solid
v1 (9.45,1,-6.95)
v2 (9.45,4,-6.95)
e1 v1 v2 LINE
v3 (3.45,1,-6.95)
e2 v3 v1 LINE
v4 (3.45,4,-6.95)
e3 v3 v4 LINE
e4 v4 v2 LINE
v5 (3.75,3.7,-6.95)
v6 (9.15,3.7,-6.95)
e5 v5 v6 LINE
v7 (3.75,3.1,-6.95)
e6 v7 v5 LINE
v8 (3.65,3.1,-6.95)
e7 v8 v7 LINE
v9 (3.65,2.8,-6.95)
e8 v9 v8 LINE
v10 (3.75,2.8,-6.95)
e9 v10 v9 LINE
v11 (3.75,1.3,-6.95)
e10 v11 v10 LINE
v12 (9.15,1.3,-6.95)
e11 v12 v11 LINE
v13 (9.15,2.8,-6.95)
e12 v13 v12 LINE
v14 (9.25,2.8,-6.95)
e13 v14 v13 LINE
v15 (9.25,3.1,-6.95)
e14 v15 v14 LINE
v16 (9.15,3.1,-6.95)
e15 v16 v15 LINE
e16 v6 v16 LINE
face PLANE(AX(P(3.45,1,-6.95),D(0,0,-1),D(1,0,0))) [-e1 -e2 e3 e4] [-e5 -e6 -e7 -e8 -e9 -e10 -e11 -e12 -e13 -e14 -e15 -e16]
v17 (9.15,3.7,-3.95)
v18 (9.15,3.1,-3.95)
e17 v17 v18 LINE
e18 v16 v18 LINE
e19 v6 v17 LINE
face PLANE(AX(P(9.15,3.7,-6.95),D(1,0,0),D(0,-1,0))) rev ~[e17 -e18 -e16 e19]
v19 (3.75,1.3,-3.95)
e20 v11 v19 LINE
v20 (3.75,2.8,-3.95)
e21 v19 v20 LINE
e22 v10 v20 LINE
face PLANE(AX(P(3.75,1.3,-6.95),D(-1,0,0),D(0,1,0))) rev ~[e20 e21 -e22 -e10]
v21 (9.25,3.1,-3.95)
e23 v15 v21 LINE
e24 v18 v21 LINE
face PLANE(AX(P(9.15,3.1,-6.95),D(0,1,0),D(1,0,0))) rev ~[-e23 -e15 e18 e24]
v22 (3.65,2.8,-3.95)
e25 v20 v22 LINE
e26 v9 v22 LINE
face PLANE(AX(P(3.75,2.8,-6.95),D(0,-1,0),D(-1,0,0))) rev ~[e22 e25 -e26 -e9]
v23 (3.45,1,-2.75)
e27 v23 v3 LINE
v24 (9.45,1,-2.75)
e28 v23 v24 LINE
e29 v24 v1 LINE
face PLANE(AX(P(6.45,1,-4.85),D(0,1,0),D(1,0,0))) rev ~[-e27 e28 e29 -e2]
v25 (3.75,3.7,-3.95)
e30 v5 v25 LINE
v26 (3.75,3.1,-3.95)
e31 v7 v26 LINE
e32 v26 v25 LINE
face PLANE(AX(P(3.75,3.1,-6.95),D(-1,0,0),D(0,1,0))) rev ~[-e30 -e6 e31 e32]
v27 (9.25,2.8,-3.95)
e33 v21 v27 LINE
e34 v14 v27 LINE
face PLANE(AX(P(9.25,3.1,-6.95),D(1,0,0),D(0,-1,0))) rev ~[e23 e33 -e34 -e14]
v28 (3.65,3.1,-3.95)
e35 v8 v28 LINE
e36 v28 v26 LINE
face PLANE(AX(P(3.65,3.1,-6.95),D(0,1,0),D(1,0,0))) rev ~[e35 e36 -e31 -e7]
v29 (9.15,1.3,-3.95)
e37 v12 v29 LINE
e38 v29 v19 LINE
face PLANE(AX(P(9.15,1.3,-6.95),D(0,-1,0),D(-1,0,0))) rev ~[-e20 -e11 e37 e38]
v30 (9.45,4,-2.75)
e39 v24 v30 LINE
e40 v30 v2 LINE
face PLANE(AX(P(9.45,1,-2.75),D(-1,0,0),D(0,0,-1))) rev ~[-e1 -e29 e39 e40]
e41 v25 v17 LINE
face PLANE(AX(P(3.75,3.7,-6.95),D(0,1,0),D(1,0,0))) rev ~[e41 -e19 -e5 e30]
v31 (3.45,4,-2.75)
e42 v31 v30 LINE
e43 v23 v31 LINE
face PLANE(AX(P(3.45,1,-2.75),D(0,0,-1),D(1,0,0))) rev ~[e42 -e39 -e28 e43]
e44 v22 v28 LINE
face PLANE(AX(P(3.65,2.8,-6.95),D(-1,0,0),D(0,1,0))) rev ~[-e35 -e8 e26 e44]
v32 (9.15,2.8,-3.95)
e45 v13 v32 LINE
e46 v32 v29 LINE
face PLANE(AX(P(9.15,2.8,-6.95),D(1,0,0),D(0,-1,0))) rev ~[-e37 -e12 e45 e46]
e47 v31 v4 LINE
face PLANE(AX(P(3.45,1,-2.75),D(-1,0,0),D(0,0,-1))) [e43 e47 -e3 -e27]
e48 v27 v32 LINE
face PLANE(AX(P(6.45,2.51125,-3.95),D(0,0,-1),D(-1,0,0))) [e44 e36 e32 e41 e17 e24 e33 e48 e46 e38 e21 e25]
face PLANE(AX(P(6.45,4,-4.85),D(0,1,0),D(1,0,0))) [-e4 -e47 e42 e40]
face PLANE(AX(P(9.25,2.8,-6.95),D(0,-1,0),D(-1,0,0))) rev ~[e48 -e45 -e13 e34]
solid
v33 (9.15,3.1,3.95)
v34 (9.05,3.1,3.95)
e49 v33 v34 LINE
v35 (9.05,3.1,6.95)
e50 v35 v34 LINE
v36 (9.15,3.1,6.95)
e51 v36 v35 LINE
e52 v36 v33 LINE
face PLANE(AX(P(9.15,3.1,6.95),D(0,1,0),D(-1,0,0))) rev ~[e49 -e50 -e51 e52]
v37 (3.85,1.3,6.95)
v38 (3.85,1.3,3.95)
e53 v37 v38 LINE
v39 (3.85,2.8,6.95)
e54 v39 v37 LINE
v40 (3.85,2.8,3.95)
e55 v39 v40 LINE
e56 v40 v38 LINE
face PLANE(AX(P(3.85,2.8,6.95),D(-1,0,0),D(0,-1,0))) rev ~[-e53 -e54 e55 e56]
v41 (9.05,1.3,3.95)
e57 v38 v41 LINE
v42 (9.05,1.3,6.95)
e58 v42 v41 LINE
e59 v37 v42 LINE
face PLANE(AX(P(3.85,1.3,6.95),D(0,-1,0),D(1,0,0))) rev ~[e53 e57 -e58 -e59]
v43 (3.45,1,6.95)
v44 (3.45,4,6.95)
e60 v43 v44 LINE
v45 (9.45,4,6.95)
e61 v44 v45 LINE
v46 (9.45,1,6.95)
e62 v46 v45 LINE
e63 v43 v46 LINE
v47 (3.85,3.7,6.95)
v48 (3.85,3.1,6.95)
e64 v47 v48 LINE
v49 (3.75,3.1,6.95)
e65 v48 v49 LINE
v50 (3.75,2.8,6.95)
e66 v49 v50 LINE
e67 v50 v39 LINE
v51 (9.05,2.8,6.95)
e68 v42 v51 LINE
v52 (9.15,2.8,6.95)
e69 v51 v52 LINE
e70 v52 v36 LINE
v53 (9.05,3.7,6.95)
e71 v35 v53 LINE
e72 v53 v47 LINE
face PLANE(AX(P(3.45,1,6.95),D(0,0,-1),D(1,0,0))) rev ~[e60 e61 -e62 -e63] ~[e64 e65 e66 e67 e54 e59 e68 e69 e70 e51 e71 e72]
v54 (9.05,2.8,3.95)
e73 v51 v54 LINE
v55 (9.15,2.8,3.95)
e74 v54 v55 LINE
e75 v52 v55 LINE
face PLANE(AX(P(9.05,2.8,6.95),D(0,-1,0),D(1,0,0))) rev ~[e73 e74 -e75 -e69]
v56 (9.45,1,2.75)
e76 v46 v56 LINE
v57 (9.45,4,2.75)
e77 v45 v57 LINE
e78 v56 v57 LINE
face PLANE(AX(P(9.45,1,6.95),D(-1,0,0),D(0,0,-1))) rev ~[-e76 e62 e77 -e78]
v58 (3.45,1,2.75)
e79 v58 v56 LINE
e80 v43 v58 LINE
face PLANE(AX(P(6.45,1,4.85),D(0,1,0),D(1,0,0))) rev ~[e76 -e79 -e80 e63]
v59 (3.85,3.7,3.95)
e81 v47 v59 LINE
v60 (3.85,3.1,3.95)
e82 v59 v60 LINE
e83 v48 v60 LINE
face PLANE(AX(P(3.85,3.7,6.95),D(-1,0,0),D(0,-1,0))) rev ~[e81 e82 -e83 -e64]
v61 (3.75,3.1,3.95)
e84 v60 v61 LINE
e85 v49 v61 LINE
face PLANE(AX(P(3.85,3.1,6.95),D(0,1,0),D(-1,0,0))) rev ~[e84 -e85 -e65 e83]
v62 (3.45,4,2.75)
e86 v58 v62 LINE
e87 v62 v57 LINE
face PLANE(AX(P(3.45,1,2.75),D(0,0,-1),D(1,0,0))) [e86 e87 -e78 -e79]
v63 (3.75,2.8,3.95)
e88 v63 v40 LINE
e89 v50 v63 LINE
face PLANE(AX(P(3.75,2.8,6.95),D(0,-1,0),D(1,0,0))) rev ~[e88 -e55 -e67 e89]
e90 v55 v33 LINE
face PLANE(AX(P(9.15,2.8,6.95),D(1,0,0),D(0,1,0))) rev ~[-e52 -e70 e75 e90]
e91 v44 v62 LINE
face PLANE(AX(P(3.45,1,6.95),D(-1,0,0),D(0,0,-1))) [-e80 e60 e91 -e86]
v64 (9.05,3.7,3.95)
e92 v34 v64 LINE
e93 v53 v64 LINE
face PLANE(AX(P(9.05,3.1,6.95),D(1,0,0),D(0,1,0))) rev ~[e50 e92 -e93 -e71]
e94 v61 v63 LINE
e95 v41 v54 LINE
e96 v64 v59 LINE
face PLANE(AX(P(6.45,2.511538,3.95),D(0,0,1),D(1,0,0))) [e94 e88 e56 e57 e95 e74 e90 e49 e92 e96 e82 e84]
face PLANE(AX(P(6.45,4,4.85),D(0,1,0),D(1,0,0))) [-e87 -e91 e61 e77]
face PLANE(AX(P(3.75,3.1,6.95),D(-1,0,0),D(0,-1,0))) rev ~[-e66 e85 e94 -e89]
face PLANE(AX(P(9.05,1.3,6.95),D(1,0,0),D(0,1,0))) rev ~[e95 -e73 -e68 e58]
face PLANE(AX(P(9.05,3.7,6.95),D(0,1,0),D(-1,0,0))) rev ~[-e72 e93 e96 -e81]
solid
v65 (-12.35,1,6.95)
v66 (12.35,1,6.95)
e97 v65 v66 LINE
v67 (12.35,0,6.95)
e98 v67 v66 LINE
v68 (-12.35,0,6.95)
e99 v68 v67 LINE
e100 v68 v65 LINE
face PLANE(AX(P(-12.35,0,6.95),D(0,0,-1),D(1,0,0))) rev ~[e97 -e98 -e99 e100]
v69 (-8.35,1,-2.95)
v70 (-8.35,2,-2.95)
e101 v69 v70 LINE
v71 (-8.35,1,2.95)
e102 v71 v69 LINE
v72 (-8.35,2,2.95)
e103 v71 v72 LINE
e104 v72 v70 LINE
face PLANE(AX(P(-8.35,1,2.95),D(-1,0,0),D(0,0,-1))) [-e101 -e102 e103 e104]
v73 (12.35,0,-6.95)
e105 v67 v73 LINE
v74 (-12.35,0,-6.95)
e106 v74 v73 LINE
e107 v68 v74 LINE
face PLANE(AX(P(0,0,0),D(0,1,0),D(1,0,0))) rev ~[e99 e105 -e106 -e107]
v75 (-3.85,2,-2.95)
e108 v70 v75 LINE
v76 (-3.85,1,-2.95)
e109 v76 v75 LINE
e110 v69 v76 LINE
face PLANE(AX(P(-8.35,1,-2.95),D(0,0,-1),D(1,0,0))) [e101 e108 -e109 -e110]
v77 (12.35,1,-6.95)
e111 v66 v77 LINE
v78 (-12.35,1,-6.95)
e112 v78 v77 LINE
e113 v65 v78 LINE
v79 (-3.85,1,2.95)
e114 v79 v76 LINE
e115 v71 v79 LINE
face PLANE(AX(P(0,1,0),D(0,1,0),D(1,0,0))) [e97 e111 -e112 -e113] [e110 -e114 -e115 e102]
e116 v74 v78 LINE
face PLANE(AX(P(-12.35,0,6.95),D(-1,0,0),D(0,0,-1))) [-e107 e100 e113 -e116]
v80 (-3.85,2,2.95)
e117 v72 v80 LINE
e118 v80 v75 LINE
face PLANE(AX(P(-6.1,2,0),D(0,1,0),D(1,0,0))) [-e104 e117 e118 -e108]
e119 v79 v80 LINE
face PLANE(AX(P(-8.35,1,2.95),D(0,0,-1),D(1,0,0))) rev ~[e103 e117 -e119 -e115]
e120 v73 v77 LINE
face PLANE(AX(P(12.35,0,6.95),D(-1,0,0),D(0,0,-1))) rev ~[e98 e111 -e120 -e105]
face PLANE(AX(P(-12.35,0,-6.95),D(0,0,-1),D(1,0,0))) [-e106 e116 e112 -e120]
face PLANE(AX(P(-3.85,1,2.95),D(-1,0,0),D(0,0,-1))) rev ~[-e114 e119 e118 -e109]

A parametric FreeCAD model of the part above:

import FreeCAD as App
import Part
import Sketcher

doc = App.newDocument("Part")
body = doc.addObject("PartDesign::Body", "Body")

# Sketch on XZ plane
sketch1 = doc.addObject("Sketcher::SketchObject", "Sketch")
body.addObject(sketch1)
sketch1.AttachmentSupport = (doc.XZ_Plane, [""])
sketch1.MapMode = "FlatFace"
sketch1.addGeometry([
    Part.LineSegment(App.Vector(-12, -7, 0), App.Vector(-12, 7, 0)),
    Part.LineSegment(App.Vector(-12, 7, 0), App.Vector(12, 7, 0)),
    Part.LineSegment(App.Vector(12, 7, 0), App.Vector(12, -7, 0)),
    Part.LineSegment(App.Vector(12, -7, 0), App.Vector(-12, -7, 0)),
], False)
sketch1.addConstraint([
    Sketcher.Constraint("Coincident", 0, 2, 1, 1),
    Sketcher.Constraint("Coincident", 1, 2, 2, 1),
    Sketcher.Constraint("Coincident", 2, 2, 3, 1),
    Sketcher.Constraint("Coincident", 3, 2, 0, 1),
    Sketcher.Constraint("Vertical", 0),
    Sketcher.Constraint("Horizontal", 1),
    Sketcher.Constraint("Vertical", 2),
    Sketcher.Constraint("Horizontal", 3),
    Sketcher.Constraint("Symmetric", 0, 2, 2, 2, -1, 1),
    Sketcher.Constraint("DistanceX", 1, 1, 1, 2, 24.7),
    Sketcher.Constraint("DistanceY", 0, 1, 0, 2, 13.9),
])
pad1 = doc.addObject("PartDesign::Pad", "Pad")
body.addObject(pad1)
pad1.Profile = sketch1
pad1.Length = 1
pad1.Reversed = True

# Sketch on XZ plane
sketch2 = doc.addObject("Sketcher::SketchObject", "Sketch001")
body.addObject(sketch2)
sketch2.AttachmentSupport = (doc.XZ_Plane, [""])
sketch2.MapMode = "FlatFace"
sketch2.AttachmentOffset = App.Placement(App.Vector(0, 0, -1), App.Rotation())
sketch2.addGeometry([
    Part.LineSegment(App.Vector(-8.3, -3, 0), App.Vector(-8.3, 3, 0)),
    Part.LineSegment(App.Vector(-8.3, 3, 0), App.Vector(-3.9, 3, 0)),
    Part.LineSegment(App.Vector(-3.9, 3, 0), App.Vector(-3.9, -3, 0)),
    Part.LineSegment(App.Vector(-3.9, -3, 0), App.Vector(-8.3, -3, 0)),
], False)
sketch2.addConstraint([
    Sketcher.Constraint("Coincident", 0, 2, 1, 1),
    Sketcher.Constraint("Coincident", 1, 2, 2, 1),
    Sketcher.Constraint("Coincident", 2, 2, 3, 1),
    Sketcher.Constraint("Coincident", 3, 2, 0, 1),
    Sketcher.Constraint("Vertical", 0),
    Sketcher.Constraint("Horizontal", 1),
    Sketcher.Constraint("Vertical", 2),
    Sketcher.Constraint("Horizontal", 3),
    Sketcher.Constraint("DistanceX", 1, 1, 1, 2, 4.5),
    Sketcher.Constraint("DistanceY", 0, 1, 0, 2, 5.9),
    Sketcher.Constraint("DistanceX", 0, 2, -1, 1, 8.35),
    Sketcher.Constraint("DistanceY", -1, 1, 0, 2, 2.95),
])
pad2 = doc.addObject("PartDesign::Pad", "Pad001")
body.addObject(pad2)
pad2.Profile = sketch2
pad2.Length = 1
pad2.Reversed = True
body2 = doc.addObject("PartDesign::Body", "Body001")

# Sketch on XZ plane
sketch3 = doc.addObject("Sketcher::SketchObject", "Sketch002")
body2.addObject(sketch3)
sketch3.AttachmentSupport = (doc.getObject("XZ_Plane001"), [""])
sketch3.MapMode = "FlatFace"
sketch3.AttachmentOffset = App.Placement(App.Vector(0, 0, -1), App.Rotation())
sketch3.addGeometry([
    Part.LineSegment(App.Vector(3.5, 2.8, 0), App.Vector(3.5, 7, 0)),
    Part.LineSegment(App.Vector(3.5, 7, 0), App.Vector(9.4, 7, 0)),
    Part.LineSegment(App.Vector(9.4, 7, 0), App.Vector(9.4, 2.8, 0)),
    Part.LineSegment(App.Vector(9.4, 2.8, 0), App.Vector(3.5, 2.8, 0)),
], False)
sketch3.addConstraint([
    Sketcher.Constraint("Coincident", 0, 2, 1, 1),
    Sketcher.Constraint("Coincident", 1, 2, 2, 1),
    Sketcher.Constraint("Coincident", 2, 2, 3, 1),
    Sketcher.Constraint("Coincident", 3, 2, 0, 1),
    Sketcher.Constraint("Vertical", 0),
    Sketcher.Constraint("Horizontal", 1),
    Sketcher.Constraint("Vertical", 2),
    Sketcher.Constraint("Horizontal", 3),
    Sketcher.Constraint("DistanceX", 1, 1, 1, 2, 6.0),
    Sketcher.Constraint("DistanceY", 0, 1, 0, 2, 4.2),
    Sketcher.Constraint("DistanceX", -1, 1, 0, 2, 3.45),
    Sketcher.Constraint("DistanceY", -1, 1, 0, 2, 6.95),
])
pad3 = doc.addObject("PartDesign::Pad", "Pad002")
body2.addObject(pad3)
pad3.Profile = sketch3
pad3.Length = 3
pad3.Reversed = True

# Sketch on XY plane
sketch4 = doc.addObject("Sketcher::SketchObject", "Sketch003")
body2.addObject(sketch4)
sketch4.AttachmentSupport = (doc.getObject("XY_Plane001"), [""])
sketch4.MapMode = "FlatFace"
sketch4.AttachmentOffset = App.Placement(App.Vector(0, 0, 6.95), App.Rotation())
sketch4.addGeometry([
    Part.LineSegment(App.Vector(3.85, 3.7, 0), App.Vector(3.85, 3.1, 0)),  # 0
    Part.LineSegment(App.Vector(3.85, 3.1, 0), App.Vector(3.75, 3.1, 0)),  # 1
    Part.LineSegment(App.Vector(3.75, 3.1, 0), App.Vector(3.75, 2.8, 0)),  # 2
    Part.LineSegment(App.Vector(3.75, 2.8, 0), App.Vector(3.85, 2.8, 0)),  # 3
    Part.LineSegment(App.Vector(3.85, 2.8, 0), App.Vector(3.85, 1.3, 0)),  # 4
    Part.LineSegment(App.Vector(3.85, 1.3, 0), App.Vector(9.05, 1.3, 0)),  # 5
    Part.LineSegment(App.Vector(9.05, 1.3, 0), App.Vector(9.05, 2.8, 0)),  # 6
    Part.LineSegment(App.Vector(9.05, 2.8, 0), App.Vector(9.15, 2.8, 0)),  # 7
    Part.LineSegment(App.Vector(9.15, 2.8, 0), App.Vector(9.15, 3.1, 0)),  # 8
    Part.LineSegment(App.Vector(9.15, 3.1, 0), App.Vector(9.05, 3.1, 0)),  # 9
    Part.LineSegment(App.Vector(9.05, 3.1, 0), App.Vector(9.05, 3.7, 0)),  # 10
    Part.LineSegment(App.Vector(9.05, 3.7, 0), App.Vector(3.85, 3.7, 0)),  # 11
], False)
sketch4.addConstraint([
    Sketcher.Constraint("Coincident", 0, 2, 1, 1),
    Sketcher.Constraint("Coincident", 1, 2, 2, 1),
    Sketcher.Constraint("Coincident", 2, 2, 3, 1),
    Sketcher.Constraint("Coincident", 3, 2, 4, 1),
    Sketcher.Constraint("Coincident", 4, 2, 5, 1),
    Sketcher.Constraint("Coincident", 5, 2, 6, 1),
    Sketcher.Constraint("Coincident", 6, 2, 7, 1),
    Sketcher.Constraint("Coincident", 7, 2, 8, 1),
    Sketcher.Constraint("Coincident", 8, 2, 9, 1),
    Sketcher.Constraint("Coincident", 9, 2, 10, 1),
    Sketcher.Constraint("Coincident", 10, 2, 11, 1),
    Sketcher.Constraint("Coincident", 11, 2, 0, 1),
    Sketcher.Constraint("Vertical", 0),
    Sketcher.Constraint("Horizontal", 1),
    Sketcher.Constraint("Vertical", 2),
    Sketcher.Constraint("Horizontal", 3),
    Sketcher.Constraint("Vertical", 4),
    Sketcher.Constraint("Horizontal", 5),
    Sketcher.Constraint("Vertical", 6),
    Sketcher.Constraint("Horizontal", 7),
    Sketcher.Constraint("Vertical", 8),
    Sketcher.Constraint("Horizontal", 9),
    Sketcher.Constraint("Vertical", 10),
    Sketcher.Constraint("Horizontal", 11),
    Sketcher.Constraint("Horizontal", 3, 2, 6, 2),
    Sketcher.Constraint("Horizontal", 1, 2, 8, 2),
    Sketcher.Constraint("Vertical", 0, 2, 3, 2),
    Sketcher.Constraint("Vertical", 6, 2, 9, 2),
    Sketcher.Constraint("Equal", 3, 7),
    Sketcher.Constraint("DistanceX", 1, 2, 1, 1, 0.1),
    Sketcher.Constraint("DistanceX", 5, 1, 5, 2, 5.2),
    Sketcher.Constraint("DistanceY", 0, 2, 0, 1, 0.6),
    Sketcher.Constraint("DistanceY", 2, 2, 2, 1, 0.3),
    Sketcher.Constraint("DistanceY", 4, 2, 4, 1, 1.5),
    Sketcher.Constraint("DistanceY", -1, 1, 0, 2, 3.1),
    Sketcher.Constraint("DistanceX", -1, 1, 0, 2, 3.85),
])
pocket1 = doc.addObject("PartDesign::Pocket", "Pocket")
body2.addObject(pocket1)
pocket1.Profile = sketch4
pocket1.Length = 3
body3 = doc.addObject("PartDesign::Body", "Body002")

# Sketch on XZ plane
sketch5 = doc.addObject("Sketcher::SketchObject", "Sketch004")
body3.addObject(sketch5)
sketch5.AttachmentSupport = (doc.getObject("XZ_Plane002"), [""])
sketch5.MapMode = "FlatFace"
sketch5.AttachmentOffset = App.Placement(App.Vector(0, 0, -1), App.Rotation())
sketch5.addGeometry([
    Part.LineSegment(App.Vector(3.5, -7, 0), App.Vector(3.5, -2.8, 0)),
    Part.LineSegment(App.Vector(3.5, -2.8, 0), App.Vector(9.4, -2.8, 0)),
    Part.LineSegment(App.Vector(9.4, -2.8, 0), App.Vector(9.4, -7, 0)),
    Part.LineSegment(App.Vector(9.4, -7, 0), App.Vector(3.5, -7, 0)),
], False)
sketch5.addConstraint([
    Sketcher.Constraint("Coincident", 0, 2, 1, 1),
    Sketcher.Constraint("Coincident", 1, 2, 2, 1),
    Sketcher.Constraint("Coincident", 2, 2, 3, 1),
    Sketcher.Constraint("Coincident", 3, 2, 0, 1),
    Sketcher.Constraint("Vertical", 0),
    Sketcher.Constraint("Horizontal", 1),
    Sketcher.Constraint("Vertical", 2),
    Sketcher.Constraint("Horizontal", 3),
    Sketcher.Constraint("DistanceX", 1, 1, 1, 2, 6.0),
    Sketcher.Constraint("DistanceY", 0, 1, 0, 2, 4.2),
    Sketcher.Constraint("DistanceX", -1, 1, 0, 2, 3.45),
    Sketcher.Constraint("DistanceY", 0, 2, -1, 1, 2.75),
])
pad4 = doc.addObject("PartDesign::Pad", "Pad003")
body3.addObject(pad4)
pad4.Profile = sketch5
pad4.Length = 3
pad4.Reversed = True

# Sketch on XY plane
sketch6 = doc.addObject("Sketcher::SketchObject", "Sketch005")
body3.addObject(sketch6)
sketch6.AttachmentSupport = (doc.getObject("XY_Plane002"), [""])
sketch6.MapMode = "FlatFace"
sketch6.AttachmentOffset = App.Placement(App.Vector(0, 0, -6.95), App.Rotation())
sketch6.addGeometry([
    Part.LineSegment(App.Vector(9.15, 3.7, 0), App.Vector(9.15, 3.1, 0)),  # 0
    Part.LineSegment(App.Vector(9.15, 3.1, 0), App.Vector(9.25, 3.1, 0)),  # 1
    Part.LineSegment(App.Vector(9.25, 3.1, 0), App.Vector(9.25, 2.8, 0)),  # 2
    Part.LineSegment(App.Vector(9.25, 2.8, 0), App.Vector(9.15, 2.8, 0)),  # 3
    Part.LineSegment(App.Vector(9.15, 2.8, 0), App.Vector(9.15, 1.3, 0)),  # 4
    Part.LineSegment(App.Vector(9.15, 1.3, 0), App.Vector(3.75, 1.3, 0)),  # 5
    Part.LineSegment(App.Vector(3.75, 1.3, 0), App.Vector(3.75, 2.8, 0)),  # 6
    Part.LineSegment(App.Vector(3.75, 2.8, 0), App.Vector(3.65, 2.8, 0)),  # 7
    Part.LineSegment(App.Vector(3.65, 2.8, 0), App.Vector(3.65, 3.1, 0)),  # 8
    Part.LineSegment(App.Vector(3.65, 3.1, 0), App.Vector(3.75, 3.1, 0)),  # 9
    Part.LineSegment(App.Vector(3.75, 3.1, 0), App.Vector(3.75, 3.7, 0)),  # 10
    Part.LineSegment(App.Vector(3.75, 3.7, 0), App.Vector(9.15, 3.7, 0)),  # 11
], False)
sketch6.addConstraint([
    Sketcher.Constraint("Coincident", 0, 2, 1, 1),
    Sketcher.Constraint("Coincident", 1, 2, 2, 1),
    Sketcher.Constraint("Coincident", 2, 2, 3, 1),
    Sketcher.Constraint("Coincident", 3, 2, 4, 1),
    Sketcher.Constraint("Coincident", 4, 2, 5, 1),
    Sketcher.Constraint("Coincident", 5, 2, 6, 1),
    Sketcher.Constraint("Coincident", 6, 2, 7, 1),
    Sketcher.Constraint("Coincident", 7, 2, 8, 1),
    Sketcher.Constraint("Coincident", 8, 2, 9, 1),
    Sketcher.Constraint("Coincident", 9, 2, 10, 1),
    Sketcher.Constraint("Coincident", 10, 2, 11, 1),
    Sketcher.Constraint("Coincident", 11, 2, 0, 1),
    Sketcher.Constraint("Vertical", 0),
    Sketcher.Constraint("Horizontal", 1),
    Sketcher.Constraint("Vertical", 2),
    Sketcher.Constraint("Horizontal", 3),
    Sketcher.Constraint("Vertical", 4),
    Sketcher.Constraint("Horizontal", 5),
    Sketcher.Constraint("Vertical", 6),
    Sketcher.Constraint("Horizontal", 7),
    Sketcher.Constraint("Vertical", 8),
    Sketcher.Constraint("Horizontal", 9),
    Sketcher.Constraint("Vertical", 10),
    Sketcher.Constraint("Horizontal", 11),
    Sketcher.Constraint("Horizontal", 3, 2, 6, 2),
    Sketcher.Constraint("Horizontal", 1, 2, 8, 2),
    Sketcher.Constraint("Vertical", 0, 2, 3, 2),
    Sketcher.Constraint("Vertical", 6, 2, 9, 2),
    Sketcher.Constraint("Equal", 3, 7),
    Sketcher.Constraint("DistanceX", 1, 1, 1, 2, 0.1),
    Sketcher.Constraint("DistanceX", 5, 2, 5, 1, 5.4),
    Sketcher.Constraint("DistanceY", 0, 2, 0, 1, 0.6),
    Sketcher.Constraint("DistanceY", 2, 2, 2, 1, 0.3),
    Sketcher.Constraint("DistanceY", 4, 2, 4, 1, 1.5),
    Sketcher.Constraint("DistanceY", -1, 1, 0, 2, 3.1),
    Sketcher.Constraint("DistanceX", -1, 1, 0, 2, 9.15),
])
pocket2 = doc.addObject("PartDesign::Pocket", "Pocket001")
body3.addObject(pocket2)
pocket2.Profile = sketch6
pocket2.Length = 3
pocket2.Reversed = True

doc.recompute()
